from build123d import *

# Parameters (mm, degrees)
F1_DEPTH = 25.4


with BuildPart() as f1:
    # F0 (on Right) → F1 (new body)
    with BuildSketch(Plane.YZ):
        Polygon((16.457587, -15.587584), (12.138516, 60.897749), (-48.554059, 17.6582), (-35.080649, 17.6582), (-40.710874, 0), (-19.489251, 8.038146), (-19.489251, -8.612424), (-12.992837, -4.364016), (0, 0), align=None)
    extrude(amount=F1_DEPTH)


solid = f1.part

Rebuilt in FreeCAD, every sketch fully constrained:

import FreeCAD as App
import Part
import Sketcher
from FreeCAD import Vector
Q = App.Units.Quantity

doc = App.newDocument("Part")
params = doc.addObject("Spreadsheet::Sheet", "Params")
for row, (alias, value) in enumerate([
    ("pad1_length", "1 in"),
], start=1):
    params.set(f"A{row}", alias)
    params.set(f"B{row}", "=" + value)
    params.setAlias(f"B{row}", alias)

body = doc.addObject("PartDesign::Body", "Body")

sketch1 = doc.addObject("Sketcher::SketchObject", "Sketch")
body.addObject(sketch1)
sketch1.AttachmentSupport = (doc.YZ_Plane, [""])
sketch1.MapMode = "FlatFace"
sketch1.addGeometry([
    Part.LineSegment(Vector(16, -16, 0), Vector(12, 61, 0)),
    Part.LineSegment(Vector(12, 61, 0), Vector(-49, 18, 0)),
    Part.LineSegment(Vector(-49, 18, 0), Vector(-35, 18, 0)),
    Part.LineSegment(Vector(-35, 18, 0), Vector(-41, 0, 0)),
    Part.LineSegment(Vector(-41, 0, 0), Vector(-19, 8, 0)),
    Part.LineSegment(Vector(-19, 8, 0), Vector(-19, -9, 0)),
    Part.LineSegment(Vector(-19, -9, 0), Vector(-13, -4, 0)),
    Part.LineSegment(Vector(-13, -4, 0), Vector(0, 0, 0)),
    Part.LineSegment(Vector(0, 0, 0), Vector(16, -16, 0)),
], False)
sketch1.addConstraint([
    Sketcher.Constraint("Coincident", 0, 2, 1, 1),
    Sketcher.Constraint("Coincident", 1, 2, 2, 1),
    Sketcher.Constraint("Coincident", 2, 2, 3, 1),
    Sketcher.Constraint("Coincident", 3, 2, 4, 1),
    Sketcher.Constraint("Coincident", 4, 2, 5, 1),
    Sketcher.Constraint("Coincident", 5, 2, 6, 1),
    Sketcher.Constraint("Coincident", 6, 2, 7, 1),
    Sketcher.Constraint("Coincident", 7, 2, 8, 1),
    Sketcher.Constraint("Coincident", 8, 2, 0, 1),
    Sketcher.Constraint("Horizontal", 2),
    Sketcher.Constraint("Vertical", 5),
    Sketcher.Constraint("Coincident", 7, 2, -1, 1),
    Sketcher.Constraint("PointOnObject", 3, 2, -1),
    Sketcher.Constraint("Distance", 6, Q("0.3056 in")),
    Sketcher.Constraint("DistanceX", 2, 1, 2, 2, Q("13.47341 mm")),
    Sketcher.Constraint("DistanceY", 5, 2, 5, 1, Q("16.65057 mm")),
    Sketcher.Constraint("DistanceY", -1, 1, 1, 2, Q("17.6582 mm")),
    Sketcher.Constraint("DistanceX", 2, 2, 4, 2, Q("15.591398 mm")),
    Sketcher.Constraint("Distance", 4, Q("22.69293 mm")),
    Sketcher.Constraint("DistanceY", -1, 1, 0, 2, Q("60.897749 mm")),
    Sketcher.Constraint("DistanceX", 1, 2, -1, 1, Q("48.554059 mm")),
    Sketcher.Constraint("DistanceX", 3, 2, 0, 2, Q("52.84939 mm")),
    Sketcher.Constraint("DistanceY", 5, 2, 6, 2, Q("4.248408 mm")),
    Sketcher.Constraint("DistanceY", 8, 2, 5, 2, Q("6.97516 mm")),
    Sketcher.Constraint("DistanceX", 3, 2, 8, 2, Q("57.168461 mm")),
    Sketcher.Constraint("Distance", 0, Q("76.607183 mm")),
])
pad1 = doc.addObject("PartDesign::Pad", "Pad")
body.addObject(pad1)
pad1.Profile = sketch1
pad1.setExpression("Length", "Params.pad1_length")

doc.recompute()
